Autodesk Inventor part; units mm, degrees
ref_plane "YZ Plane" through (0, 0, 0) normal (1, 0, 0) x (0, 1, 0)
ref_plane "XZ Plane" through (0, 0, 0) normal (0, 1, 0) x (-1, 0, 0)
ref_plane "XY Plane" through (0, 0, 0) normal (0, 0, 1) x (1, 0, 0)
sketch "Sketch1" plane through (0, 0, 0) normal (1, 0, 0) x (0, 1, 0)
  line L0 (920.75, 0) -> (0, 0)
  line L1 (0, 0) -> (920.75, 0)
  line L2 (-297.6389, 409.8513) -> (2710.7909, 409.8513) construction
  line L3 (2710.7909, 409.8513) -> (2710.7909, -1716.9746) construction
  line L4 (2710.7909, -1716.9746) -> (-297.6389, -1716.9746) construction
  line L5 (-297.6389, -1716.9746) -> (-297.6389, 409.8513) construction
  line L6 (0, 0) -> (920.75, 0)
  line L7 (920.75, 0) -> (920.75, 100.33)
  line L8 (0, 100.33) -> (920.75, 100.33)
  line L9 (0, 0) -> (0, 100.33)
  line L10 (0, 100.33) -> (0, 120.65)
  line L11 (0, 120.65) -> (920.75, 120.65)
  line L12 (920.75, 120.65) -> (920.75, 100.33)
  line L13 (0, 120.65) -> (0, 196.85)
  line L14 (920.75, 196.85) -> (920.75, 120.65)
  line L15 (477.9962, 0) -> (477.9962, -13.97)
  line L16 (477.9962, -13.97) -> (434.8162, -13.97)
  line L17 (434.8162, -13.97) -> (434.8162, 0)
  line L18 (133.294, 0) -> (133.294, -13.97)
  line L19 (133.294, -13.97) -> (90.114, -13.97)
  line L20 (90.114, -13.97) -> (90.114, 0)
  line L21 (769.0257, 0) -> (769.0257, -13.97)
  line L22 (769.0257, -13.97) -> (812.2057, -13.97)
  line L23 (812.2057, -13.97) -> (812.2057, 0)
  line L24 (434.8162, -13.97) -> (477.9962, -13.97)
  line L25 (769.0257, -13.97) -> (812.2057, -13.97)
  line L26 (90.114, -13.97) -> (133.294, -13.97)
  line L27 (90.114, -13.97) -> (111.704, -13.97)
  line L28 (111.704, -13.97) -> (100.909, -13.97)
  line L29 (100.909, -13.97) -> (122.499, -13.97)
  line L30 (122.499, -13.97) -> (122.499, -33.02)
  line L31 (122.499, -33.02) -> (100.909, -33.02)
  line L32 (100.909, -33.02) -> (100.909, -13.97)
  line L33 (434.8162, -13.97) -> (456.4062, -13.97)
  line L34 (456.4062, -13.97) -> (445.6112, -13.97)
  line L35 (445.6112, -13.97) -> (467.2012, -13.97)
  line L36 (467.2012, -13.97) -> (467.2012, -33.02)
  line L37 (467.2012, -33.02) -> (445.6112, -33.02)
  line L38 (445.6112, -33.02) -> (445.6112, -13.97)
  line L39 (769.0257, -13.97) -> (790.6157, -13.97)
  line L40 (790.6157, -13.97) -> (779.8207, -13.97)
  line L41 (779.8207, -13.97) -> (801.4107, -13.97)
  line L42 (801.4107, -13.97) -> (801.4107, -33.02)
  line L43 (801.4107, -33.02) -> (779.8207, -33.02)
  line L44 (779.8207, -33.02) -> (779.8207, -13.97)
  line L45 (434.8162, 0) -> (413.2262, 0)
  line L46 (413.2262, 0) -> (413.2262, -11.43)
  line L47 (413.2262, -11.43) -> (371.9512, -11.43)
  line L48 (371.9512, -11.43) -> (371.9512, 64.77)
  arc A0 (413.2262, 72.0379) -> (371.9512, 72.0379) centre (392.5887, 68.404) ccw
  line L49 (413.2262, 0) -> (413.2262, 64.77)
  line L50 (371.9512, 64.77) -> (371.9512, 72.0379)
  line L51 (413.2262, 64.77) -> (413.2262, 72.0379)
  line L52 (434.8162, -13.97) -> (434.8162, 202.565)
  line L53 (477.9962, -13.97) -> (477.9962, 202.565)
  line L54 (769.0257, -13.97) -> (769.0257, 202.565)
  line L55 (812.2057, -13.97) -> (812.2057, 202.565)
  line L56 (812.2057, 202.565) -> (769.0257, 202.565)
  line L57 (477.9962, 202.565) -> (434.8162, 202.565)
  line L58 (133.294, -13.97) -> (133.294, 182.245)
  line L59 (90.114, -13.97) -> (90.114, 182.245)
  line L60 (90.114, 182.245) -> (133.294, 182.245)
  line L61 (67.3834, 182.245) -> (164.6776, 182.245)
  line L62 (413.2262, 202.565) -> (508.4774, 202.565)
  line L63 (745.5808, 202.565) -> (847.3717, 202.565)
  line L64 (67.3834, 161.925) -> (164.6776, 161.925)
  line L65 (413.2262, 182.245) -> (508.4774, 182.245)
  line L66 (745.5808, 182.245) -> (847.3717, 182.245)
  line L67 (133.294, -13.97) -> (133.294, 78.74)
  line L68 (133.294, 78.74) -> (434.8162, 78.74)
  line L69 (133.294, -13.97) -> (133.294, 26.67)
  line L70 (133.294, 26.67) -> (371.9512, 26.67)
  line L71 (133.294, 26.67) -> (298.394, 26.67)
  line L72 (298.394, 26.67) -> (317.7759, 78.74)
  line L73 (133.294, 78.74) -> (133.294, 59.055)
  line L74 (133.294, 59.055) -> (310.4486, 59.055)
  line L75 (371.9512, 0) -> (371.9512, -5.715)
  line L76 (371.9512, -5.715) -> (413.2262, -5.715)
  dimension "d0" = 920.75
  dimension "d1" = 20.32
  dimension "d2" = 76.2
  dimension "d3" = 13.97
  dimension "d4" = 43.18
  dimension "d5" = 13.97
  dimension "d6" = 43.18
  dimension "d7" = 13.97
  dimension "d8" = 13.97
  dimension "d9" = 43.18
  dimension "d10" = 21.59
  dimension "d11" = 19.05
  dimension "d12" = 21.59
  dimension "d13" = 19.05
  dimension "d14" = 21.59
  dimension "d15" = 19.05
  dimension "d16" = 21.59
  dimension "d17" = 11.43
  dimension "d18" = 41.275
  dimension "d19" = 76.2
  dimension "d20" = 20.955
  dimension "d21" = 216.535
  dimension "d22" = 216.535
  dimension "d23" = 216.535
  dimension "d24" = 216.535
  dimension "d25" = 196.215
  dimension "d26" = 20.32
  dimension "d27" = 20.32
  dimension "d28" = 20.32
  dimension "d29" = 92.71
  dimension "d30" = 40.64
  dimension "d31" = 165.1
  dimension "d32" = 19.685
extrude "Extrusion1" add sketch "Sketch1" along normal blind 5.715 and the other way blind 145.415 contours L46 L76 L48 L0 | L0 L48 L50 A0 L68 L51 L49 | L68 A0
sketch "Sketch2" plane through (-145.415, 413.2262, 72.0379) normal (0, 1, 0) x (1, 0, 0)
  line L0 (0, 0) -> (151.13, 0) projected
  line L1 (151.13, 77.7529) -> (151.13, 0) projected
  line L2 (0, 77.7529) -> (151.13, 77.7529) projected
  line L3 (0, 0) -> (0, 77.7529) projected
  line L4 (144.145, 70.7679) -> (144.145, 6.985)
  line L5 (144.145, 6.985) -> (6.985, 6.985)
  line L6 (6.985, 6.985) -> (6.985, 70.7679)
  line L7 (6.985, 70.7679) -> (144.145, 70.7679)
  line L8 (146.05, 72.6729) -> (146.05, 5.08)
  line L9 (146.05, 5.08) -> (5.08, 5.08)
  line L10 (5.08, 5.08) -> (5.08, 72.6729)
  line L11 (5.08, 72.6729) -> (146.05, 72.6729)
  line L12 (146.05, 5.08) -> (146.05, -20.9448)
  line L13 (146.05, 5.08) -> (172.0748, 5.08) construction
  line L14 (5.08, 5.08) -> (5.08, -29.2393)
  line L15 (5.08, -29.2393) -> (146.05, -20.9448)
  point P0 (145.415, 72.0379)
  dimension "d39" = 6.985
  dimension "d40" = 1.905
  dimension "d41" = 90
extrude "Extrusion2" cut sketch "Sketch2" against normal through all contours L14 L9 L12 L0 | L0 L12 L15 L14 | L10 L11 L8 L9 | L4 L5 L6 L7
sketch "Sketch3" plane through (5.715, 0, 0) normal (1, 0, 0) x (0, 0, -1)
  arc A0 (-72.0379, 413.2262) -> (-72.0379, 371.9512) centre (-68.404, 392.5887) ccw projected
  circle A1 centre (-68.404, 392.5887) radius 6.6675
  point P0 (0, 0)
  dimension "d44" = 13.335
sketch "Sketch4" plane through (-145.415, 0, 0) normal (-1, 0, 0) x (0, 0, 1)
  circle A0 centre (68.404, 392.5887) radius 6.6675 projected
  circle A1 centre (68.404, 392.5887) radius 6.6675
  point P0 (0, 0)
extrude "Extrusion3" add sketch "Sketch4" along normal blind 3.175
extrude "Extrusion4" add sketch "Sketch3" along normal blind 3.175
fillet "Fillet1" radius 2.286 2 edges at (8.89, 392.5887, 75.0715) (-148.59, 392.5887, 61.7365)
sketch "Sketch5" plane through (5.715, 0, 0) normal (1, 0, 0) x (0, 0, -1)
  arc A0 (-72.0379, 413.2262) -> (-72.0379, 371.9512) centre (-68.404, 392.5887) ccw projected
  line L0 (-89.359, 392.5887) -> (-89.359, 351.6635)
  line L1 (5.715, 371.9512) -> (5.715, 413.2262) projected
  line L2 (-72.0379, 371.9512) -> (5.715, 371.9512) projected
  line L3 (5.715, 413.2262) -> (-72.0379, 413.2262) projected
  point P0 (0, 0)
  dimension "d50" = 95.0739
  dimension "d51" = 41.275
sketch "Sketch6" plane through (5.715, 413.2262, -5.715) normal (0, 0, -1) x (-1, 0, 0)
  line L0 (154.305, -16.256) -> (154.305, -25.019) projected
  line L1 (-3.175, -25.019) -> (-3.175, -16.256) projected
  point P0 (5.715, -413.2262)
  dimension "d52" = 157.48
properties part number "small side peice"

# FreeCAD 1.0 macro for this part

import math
import FreeCAD as App
import Part
import Sketcher
Q = App.Units.Quantity


def edges_at(feature, points):
    """Names of the edges that pass closest to the given points."""
    edges = feature.Shape.Edges
    near = lambda p: min(range(len(edges)), key=lambda i: edges[i].distToShape(Part.Vertex(*p))[0])
    return sorted({f"Edge{near(p) + 1}" for p in points})

doc = App.newDocument("Part")
body = doc.addObject("PartDesign::Body", "Body")

sketch1 = body.newObject("Sketcher::SketchObject", "Sketch")
sketch1.AttachmentSupport = (doc.getObject("YZ_Plane"), [""])
sketch1.MapMode = "FlatFace"
sketch1.addGeometry(Part.LineSegment(App.Vector(413, -6, 0), App.Vector(413, 72, 0)), False)
sketch1.addGeometry(Part.ArcOfCircle(Part.Circle(App.Vector(393, 68, 0), App.Vector(0, 0, 1), 21), math.radians(10), math.radians(170)), False)
sketch1.addGeometry(Part.LineSegment(App.Vector(372, 72, 0), App.Vector(372, -6, 0)), False)
sketch1.addGeometry(Part.LineSegment(App.Vector(372, -6, 0), App.Vector(413, -6, 0)), False)
sketch1.addConstraint(Sketcher.Constraint("Coincident", 0, 2, 1, 1))
sketch1.addConstraint(Sketcher.Constraint("Coincident", 1, 2, 2, 1))
sketch1.addConstraint(Sketcher.Constraint("Coincident", 2, 2, 3, 1))
sketch1.addConstraint(Sketcher.Constraint("Coincident", 3, 2, 0, 1))
sketch1.addConstraint(Sketcher.Constraint("Vertical", 0))
sketch1.addConstraint(Sketcher.Constraint("Vertical", 2))
sketch1.addConstraint(Sketcher.Constraint("Horizontal", 3))
sketch1.addConstraint(Sketcher.Constraint("Horizontal", 0, 2, 1, 2))
sketch1.addConstraint(Sketcher.Constraint("Radius", 1, Q("0.825 in")))
sketch1.addConstraint(Sketcher.Constraint("DistanceX", 3, 1, 3, 2, Q("1.625 in")))
sketch1.addConstraint(Sketcher.Constraint("DistanceY", 2, 2, -1, 1, Q("0.225 in")))
sketch1.addConstraint(Sketcher.Constraint("DistanceY", 0, 1, 0, 2, Q("77.753 mm")))
sketch1.addConstraint(Sketcher.Constraint("DistanceX", -1, 1, 1, 3, Q("392.5887 mm")))
pad1 = body.newObject("PartDesign::Pad", "Pad")
pad1.Profile = sketch1
pad1.Type = "TwoLengths"
pad1.Length = Q("0.225 in")
pad1.Length2 = Q("5.725 in")

sketch2 = body.newObject("Sketcher::SketchObject", "Sketch001")
sketch2.AttachmentSupport = (doc.getObject("XZ_Plane"), [""])
sketch2.MapMode = "FlatFace"
sketch2.AttachmentOffset = App.Placement(App.Vector(0, 0, -413.2262), App.Rotation())
sketch2.addGeometry(Part.LineSegment(App.Vector(-140, 101, 0), App.Vector(1, 93, 0)), False)
sketch2.addGeometry(Part.LineSegment(App.Vector(1, 93, 0), App.Vector(1, -1, 0)), False)
sketch2.addGeometry(Part.LineSegment(App.Vector(1, -1, 0), App.Vector(-140, -1, 0)), False)
sketch2.addGeometry(Part.LineSegment(App.Vector(-140, -1, 0), App.Vector(-140, 101, 0)), False)
sketch2.addConstraint(Sketcher.Constraint("Coincident", 0, 2, 1, 1))
sketch2.addConstraint(Sketcher.Constraint("Coincident", 1, 2, 2, 1))
sketch2.addConstraint(Sketcher.Constraint("Coincident", 2, 2, 3, 1))
sketch2.addConstraint(Sketcher.Constraint("Coincident", 3, 2, 0, 1))
sketch2.addConstraint(Sketcher.Constraint("Vertical", 1))
sketch2.addConstraint(Sketcher.Constraint("Horizontal", 2))
sketch2.addConstraint(Sketcher.Constraint("Vertical", 3))
sketch2.addConstraint(Sketcher.Constraint("DistanceX", 2, 2, 2, 1, Q("5.55 in")))
sketch2.addConstraint(Sketcher.Constraint("DistanceY", 3, 1, 3, 2, Q("4.0123 in")))
sketch2.addConstraint(Sketcher.Constraint("DistanceX", -1, 1, 0, 2, Q("0.025 in")))
sketch2.addConstraint(Sketcher.Constraint("DistanceY", 1, 2, -1, 1, Q("0.025 in")))
sketch2.addConstraint(Sketcher.Constraint("Distance", 0, Q("5.5596 in")))
pocket1 = body.newObject("PartDesign::Pocket", "Pocket")
pocket1.Profile = sketch2
pocket1.Type = "ThroughAll"
pocket1.Reversed = True

sketch3 = body.newObject("Sketcher::SketchObject", "Sketch002")
sketch3.AttachmentSupport = (doc.getObject("YZ_Plane"), [""])
sketch3.MapMode = "FlatFace"
sketch3.AttachmentOffset = App.Placement(App.Vector(0, 0, -5.725 * 25.4), App.Rotation())
sketch3.addGeometry(Part.Circle(App.Vector(393, 68, 0), App.Vector(0, 0, 1), 7), False)
sketch3.addConstraint(Sketcher.Constraint("Diameter", 0, Q("0.525 in")))
sketch3.addConstraint(Sketcher.Constraint("DistanceX", -1, 1, 0, 3, Q("392.5887 mm")))
sketch3.addConstraint(Sketcher.Constraint("DistanceY", -1, 1, 0, 3, Q("68.404 mm")))
pad2 = body.newObject("PartDesign::Pad", "Pad001")
pad2.Profile = sketch3
pad2.Length = Q("0.125 in")
pad2.Reversed = True

sketch4 = body.newObject("Sketcher::SketchObject", "Sketch003")
sketch4.AttachmentSupport = (doc.getObject("YZ_Plane"), [""])
sketch4.MapMode = "FlatFace"
sketch4.AttachmentOffset = App.Placement(App.Vector(0, 0, 0.225 * 25.4), App.Rotation())
sketch4.addGeometry(Part.Circle(App.Vector(393, 68, 0), App.Vector(0, 0, 1), 7), False)
sketch4.addConstraint(Sketcher.Constraint("Diameter", 0, Q("0.525 in")))
sketch4.addConstraint(Sketcher.Constraint("DistanceX", -1, 1, 0, 3, Q("392.5887 mm")))
sketch4.addConstraint(Sketcher.Constraint("DistanceY", -1, 1, 0, 3, Q("68.404 mm")))
pad3 = body.newObject("PartDesign::Pad", "Pad002")
pad3.Profile = sketch4
pad3.Length = Q("0.125 in")
doc.recompute()

fillet = body.newObject("PartDesign::Fillet", "Fillet")
fillet.Base = (pad3, edges_at(pad3, [(8.89, 392.589, 75.072), (-148.59, 392.589, 61.736)]))
fillet.Radius = Q("0.09 in")

doc.recompute()
